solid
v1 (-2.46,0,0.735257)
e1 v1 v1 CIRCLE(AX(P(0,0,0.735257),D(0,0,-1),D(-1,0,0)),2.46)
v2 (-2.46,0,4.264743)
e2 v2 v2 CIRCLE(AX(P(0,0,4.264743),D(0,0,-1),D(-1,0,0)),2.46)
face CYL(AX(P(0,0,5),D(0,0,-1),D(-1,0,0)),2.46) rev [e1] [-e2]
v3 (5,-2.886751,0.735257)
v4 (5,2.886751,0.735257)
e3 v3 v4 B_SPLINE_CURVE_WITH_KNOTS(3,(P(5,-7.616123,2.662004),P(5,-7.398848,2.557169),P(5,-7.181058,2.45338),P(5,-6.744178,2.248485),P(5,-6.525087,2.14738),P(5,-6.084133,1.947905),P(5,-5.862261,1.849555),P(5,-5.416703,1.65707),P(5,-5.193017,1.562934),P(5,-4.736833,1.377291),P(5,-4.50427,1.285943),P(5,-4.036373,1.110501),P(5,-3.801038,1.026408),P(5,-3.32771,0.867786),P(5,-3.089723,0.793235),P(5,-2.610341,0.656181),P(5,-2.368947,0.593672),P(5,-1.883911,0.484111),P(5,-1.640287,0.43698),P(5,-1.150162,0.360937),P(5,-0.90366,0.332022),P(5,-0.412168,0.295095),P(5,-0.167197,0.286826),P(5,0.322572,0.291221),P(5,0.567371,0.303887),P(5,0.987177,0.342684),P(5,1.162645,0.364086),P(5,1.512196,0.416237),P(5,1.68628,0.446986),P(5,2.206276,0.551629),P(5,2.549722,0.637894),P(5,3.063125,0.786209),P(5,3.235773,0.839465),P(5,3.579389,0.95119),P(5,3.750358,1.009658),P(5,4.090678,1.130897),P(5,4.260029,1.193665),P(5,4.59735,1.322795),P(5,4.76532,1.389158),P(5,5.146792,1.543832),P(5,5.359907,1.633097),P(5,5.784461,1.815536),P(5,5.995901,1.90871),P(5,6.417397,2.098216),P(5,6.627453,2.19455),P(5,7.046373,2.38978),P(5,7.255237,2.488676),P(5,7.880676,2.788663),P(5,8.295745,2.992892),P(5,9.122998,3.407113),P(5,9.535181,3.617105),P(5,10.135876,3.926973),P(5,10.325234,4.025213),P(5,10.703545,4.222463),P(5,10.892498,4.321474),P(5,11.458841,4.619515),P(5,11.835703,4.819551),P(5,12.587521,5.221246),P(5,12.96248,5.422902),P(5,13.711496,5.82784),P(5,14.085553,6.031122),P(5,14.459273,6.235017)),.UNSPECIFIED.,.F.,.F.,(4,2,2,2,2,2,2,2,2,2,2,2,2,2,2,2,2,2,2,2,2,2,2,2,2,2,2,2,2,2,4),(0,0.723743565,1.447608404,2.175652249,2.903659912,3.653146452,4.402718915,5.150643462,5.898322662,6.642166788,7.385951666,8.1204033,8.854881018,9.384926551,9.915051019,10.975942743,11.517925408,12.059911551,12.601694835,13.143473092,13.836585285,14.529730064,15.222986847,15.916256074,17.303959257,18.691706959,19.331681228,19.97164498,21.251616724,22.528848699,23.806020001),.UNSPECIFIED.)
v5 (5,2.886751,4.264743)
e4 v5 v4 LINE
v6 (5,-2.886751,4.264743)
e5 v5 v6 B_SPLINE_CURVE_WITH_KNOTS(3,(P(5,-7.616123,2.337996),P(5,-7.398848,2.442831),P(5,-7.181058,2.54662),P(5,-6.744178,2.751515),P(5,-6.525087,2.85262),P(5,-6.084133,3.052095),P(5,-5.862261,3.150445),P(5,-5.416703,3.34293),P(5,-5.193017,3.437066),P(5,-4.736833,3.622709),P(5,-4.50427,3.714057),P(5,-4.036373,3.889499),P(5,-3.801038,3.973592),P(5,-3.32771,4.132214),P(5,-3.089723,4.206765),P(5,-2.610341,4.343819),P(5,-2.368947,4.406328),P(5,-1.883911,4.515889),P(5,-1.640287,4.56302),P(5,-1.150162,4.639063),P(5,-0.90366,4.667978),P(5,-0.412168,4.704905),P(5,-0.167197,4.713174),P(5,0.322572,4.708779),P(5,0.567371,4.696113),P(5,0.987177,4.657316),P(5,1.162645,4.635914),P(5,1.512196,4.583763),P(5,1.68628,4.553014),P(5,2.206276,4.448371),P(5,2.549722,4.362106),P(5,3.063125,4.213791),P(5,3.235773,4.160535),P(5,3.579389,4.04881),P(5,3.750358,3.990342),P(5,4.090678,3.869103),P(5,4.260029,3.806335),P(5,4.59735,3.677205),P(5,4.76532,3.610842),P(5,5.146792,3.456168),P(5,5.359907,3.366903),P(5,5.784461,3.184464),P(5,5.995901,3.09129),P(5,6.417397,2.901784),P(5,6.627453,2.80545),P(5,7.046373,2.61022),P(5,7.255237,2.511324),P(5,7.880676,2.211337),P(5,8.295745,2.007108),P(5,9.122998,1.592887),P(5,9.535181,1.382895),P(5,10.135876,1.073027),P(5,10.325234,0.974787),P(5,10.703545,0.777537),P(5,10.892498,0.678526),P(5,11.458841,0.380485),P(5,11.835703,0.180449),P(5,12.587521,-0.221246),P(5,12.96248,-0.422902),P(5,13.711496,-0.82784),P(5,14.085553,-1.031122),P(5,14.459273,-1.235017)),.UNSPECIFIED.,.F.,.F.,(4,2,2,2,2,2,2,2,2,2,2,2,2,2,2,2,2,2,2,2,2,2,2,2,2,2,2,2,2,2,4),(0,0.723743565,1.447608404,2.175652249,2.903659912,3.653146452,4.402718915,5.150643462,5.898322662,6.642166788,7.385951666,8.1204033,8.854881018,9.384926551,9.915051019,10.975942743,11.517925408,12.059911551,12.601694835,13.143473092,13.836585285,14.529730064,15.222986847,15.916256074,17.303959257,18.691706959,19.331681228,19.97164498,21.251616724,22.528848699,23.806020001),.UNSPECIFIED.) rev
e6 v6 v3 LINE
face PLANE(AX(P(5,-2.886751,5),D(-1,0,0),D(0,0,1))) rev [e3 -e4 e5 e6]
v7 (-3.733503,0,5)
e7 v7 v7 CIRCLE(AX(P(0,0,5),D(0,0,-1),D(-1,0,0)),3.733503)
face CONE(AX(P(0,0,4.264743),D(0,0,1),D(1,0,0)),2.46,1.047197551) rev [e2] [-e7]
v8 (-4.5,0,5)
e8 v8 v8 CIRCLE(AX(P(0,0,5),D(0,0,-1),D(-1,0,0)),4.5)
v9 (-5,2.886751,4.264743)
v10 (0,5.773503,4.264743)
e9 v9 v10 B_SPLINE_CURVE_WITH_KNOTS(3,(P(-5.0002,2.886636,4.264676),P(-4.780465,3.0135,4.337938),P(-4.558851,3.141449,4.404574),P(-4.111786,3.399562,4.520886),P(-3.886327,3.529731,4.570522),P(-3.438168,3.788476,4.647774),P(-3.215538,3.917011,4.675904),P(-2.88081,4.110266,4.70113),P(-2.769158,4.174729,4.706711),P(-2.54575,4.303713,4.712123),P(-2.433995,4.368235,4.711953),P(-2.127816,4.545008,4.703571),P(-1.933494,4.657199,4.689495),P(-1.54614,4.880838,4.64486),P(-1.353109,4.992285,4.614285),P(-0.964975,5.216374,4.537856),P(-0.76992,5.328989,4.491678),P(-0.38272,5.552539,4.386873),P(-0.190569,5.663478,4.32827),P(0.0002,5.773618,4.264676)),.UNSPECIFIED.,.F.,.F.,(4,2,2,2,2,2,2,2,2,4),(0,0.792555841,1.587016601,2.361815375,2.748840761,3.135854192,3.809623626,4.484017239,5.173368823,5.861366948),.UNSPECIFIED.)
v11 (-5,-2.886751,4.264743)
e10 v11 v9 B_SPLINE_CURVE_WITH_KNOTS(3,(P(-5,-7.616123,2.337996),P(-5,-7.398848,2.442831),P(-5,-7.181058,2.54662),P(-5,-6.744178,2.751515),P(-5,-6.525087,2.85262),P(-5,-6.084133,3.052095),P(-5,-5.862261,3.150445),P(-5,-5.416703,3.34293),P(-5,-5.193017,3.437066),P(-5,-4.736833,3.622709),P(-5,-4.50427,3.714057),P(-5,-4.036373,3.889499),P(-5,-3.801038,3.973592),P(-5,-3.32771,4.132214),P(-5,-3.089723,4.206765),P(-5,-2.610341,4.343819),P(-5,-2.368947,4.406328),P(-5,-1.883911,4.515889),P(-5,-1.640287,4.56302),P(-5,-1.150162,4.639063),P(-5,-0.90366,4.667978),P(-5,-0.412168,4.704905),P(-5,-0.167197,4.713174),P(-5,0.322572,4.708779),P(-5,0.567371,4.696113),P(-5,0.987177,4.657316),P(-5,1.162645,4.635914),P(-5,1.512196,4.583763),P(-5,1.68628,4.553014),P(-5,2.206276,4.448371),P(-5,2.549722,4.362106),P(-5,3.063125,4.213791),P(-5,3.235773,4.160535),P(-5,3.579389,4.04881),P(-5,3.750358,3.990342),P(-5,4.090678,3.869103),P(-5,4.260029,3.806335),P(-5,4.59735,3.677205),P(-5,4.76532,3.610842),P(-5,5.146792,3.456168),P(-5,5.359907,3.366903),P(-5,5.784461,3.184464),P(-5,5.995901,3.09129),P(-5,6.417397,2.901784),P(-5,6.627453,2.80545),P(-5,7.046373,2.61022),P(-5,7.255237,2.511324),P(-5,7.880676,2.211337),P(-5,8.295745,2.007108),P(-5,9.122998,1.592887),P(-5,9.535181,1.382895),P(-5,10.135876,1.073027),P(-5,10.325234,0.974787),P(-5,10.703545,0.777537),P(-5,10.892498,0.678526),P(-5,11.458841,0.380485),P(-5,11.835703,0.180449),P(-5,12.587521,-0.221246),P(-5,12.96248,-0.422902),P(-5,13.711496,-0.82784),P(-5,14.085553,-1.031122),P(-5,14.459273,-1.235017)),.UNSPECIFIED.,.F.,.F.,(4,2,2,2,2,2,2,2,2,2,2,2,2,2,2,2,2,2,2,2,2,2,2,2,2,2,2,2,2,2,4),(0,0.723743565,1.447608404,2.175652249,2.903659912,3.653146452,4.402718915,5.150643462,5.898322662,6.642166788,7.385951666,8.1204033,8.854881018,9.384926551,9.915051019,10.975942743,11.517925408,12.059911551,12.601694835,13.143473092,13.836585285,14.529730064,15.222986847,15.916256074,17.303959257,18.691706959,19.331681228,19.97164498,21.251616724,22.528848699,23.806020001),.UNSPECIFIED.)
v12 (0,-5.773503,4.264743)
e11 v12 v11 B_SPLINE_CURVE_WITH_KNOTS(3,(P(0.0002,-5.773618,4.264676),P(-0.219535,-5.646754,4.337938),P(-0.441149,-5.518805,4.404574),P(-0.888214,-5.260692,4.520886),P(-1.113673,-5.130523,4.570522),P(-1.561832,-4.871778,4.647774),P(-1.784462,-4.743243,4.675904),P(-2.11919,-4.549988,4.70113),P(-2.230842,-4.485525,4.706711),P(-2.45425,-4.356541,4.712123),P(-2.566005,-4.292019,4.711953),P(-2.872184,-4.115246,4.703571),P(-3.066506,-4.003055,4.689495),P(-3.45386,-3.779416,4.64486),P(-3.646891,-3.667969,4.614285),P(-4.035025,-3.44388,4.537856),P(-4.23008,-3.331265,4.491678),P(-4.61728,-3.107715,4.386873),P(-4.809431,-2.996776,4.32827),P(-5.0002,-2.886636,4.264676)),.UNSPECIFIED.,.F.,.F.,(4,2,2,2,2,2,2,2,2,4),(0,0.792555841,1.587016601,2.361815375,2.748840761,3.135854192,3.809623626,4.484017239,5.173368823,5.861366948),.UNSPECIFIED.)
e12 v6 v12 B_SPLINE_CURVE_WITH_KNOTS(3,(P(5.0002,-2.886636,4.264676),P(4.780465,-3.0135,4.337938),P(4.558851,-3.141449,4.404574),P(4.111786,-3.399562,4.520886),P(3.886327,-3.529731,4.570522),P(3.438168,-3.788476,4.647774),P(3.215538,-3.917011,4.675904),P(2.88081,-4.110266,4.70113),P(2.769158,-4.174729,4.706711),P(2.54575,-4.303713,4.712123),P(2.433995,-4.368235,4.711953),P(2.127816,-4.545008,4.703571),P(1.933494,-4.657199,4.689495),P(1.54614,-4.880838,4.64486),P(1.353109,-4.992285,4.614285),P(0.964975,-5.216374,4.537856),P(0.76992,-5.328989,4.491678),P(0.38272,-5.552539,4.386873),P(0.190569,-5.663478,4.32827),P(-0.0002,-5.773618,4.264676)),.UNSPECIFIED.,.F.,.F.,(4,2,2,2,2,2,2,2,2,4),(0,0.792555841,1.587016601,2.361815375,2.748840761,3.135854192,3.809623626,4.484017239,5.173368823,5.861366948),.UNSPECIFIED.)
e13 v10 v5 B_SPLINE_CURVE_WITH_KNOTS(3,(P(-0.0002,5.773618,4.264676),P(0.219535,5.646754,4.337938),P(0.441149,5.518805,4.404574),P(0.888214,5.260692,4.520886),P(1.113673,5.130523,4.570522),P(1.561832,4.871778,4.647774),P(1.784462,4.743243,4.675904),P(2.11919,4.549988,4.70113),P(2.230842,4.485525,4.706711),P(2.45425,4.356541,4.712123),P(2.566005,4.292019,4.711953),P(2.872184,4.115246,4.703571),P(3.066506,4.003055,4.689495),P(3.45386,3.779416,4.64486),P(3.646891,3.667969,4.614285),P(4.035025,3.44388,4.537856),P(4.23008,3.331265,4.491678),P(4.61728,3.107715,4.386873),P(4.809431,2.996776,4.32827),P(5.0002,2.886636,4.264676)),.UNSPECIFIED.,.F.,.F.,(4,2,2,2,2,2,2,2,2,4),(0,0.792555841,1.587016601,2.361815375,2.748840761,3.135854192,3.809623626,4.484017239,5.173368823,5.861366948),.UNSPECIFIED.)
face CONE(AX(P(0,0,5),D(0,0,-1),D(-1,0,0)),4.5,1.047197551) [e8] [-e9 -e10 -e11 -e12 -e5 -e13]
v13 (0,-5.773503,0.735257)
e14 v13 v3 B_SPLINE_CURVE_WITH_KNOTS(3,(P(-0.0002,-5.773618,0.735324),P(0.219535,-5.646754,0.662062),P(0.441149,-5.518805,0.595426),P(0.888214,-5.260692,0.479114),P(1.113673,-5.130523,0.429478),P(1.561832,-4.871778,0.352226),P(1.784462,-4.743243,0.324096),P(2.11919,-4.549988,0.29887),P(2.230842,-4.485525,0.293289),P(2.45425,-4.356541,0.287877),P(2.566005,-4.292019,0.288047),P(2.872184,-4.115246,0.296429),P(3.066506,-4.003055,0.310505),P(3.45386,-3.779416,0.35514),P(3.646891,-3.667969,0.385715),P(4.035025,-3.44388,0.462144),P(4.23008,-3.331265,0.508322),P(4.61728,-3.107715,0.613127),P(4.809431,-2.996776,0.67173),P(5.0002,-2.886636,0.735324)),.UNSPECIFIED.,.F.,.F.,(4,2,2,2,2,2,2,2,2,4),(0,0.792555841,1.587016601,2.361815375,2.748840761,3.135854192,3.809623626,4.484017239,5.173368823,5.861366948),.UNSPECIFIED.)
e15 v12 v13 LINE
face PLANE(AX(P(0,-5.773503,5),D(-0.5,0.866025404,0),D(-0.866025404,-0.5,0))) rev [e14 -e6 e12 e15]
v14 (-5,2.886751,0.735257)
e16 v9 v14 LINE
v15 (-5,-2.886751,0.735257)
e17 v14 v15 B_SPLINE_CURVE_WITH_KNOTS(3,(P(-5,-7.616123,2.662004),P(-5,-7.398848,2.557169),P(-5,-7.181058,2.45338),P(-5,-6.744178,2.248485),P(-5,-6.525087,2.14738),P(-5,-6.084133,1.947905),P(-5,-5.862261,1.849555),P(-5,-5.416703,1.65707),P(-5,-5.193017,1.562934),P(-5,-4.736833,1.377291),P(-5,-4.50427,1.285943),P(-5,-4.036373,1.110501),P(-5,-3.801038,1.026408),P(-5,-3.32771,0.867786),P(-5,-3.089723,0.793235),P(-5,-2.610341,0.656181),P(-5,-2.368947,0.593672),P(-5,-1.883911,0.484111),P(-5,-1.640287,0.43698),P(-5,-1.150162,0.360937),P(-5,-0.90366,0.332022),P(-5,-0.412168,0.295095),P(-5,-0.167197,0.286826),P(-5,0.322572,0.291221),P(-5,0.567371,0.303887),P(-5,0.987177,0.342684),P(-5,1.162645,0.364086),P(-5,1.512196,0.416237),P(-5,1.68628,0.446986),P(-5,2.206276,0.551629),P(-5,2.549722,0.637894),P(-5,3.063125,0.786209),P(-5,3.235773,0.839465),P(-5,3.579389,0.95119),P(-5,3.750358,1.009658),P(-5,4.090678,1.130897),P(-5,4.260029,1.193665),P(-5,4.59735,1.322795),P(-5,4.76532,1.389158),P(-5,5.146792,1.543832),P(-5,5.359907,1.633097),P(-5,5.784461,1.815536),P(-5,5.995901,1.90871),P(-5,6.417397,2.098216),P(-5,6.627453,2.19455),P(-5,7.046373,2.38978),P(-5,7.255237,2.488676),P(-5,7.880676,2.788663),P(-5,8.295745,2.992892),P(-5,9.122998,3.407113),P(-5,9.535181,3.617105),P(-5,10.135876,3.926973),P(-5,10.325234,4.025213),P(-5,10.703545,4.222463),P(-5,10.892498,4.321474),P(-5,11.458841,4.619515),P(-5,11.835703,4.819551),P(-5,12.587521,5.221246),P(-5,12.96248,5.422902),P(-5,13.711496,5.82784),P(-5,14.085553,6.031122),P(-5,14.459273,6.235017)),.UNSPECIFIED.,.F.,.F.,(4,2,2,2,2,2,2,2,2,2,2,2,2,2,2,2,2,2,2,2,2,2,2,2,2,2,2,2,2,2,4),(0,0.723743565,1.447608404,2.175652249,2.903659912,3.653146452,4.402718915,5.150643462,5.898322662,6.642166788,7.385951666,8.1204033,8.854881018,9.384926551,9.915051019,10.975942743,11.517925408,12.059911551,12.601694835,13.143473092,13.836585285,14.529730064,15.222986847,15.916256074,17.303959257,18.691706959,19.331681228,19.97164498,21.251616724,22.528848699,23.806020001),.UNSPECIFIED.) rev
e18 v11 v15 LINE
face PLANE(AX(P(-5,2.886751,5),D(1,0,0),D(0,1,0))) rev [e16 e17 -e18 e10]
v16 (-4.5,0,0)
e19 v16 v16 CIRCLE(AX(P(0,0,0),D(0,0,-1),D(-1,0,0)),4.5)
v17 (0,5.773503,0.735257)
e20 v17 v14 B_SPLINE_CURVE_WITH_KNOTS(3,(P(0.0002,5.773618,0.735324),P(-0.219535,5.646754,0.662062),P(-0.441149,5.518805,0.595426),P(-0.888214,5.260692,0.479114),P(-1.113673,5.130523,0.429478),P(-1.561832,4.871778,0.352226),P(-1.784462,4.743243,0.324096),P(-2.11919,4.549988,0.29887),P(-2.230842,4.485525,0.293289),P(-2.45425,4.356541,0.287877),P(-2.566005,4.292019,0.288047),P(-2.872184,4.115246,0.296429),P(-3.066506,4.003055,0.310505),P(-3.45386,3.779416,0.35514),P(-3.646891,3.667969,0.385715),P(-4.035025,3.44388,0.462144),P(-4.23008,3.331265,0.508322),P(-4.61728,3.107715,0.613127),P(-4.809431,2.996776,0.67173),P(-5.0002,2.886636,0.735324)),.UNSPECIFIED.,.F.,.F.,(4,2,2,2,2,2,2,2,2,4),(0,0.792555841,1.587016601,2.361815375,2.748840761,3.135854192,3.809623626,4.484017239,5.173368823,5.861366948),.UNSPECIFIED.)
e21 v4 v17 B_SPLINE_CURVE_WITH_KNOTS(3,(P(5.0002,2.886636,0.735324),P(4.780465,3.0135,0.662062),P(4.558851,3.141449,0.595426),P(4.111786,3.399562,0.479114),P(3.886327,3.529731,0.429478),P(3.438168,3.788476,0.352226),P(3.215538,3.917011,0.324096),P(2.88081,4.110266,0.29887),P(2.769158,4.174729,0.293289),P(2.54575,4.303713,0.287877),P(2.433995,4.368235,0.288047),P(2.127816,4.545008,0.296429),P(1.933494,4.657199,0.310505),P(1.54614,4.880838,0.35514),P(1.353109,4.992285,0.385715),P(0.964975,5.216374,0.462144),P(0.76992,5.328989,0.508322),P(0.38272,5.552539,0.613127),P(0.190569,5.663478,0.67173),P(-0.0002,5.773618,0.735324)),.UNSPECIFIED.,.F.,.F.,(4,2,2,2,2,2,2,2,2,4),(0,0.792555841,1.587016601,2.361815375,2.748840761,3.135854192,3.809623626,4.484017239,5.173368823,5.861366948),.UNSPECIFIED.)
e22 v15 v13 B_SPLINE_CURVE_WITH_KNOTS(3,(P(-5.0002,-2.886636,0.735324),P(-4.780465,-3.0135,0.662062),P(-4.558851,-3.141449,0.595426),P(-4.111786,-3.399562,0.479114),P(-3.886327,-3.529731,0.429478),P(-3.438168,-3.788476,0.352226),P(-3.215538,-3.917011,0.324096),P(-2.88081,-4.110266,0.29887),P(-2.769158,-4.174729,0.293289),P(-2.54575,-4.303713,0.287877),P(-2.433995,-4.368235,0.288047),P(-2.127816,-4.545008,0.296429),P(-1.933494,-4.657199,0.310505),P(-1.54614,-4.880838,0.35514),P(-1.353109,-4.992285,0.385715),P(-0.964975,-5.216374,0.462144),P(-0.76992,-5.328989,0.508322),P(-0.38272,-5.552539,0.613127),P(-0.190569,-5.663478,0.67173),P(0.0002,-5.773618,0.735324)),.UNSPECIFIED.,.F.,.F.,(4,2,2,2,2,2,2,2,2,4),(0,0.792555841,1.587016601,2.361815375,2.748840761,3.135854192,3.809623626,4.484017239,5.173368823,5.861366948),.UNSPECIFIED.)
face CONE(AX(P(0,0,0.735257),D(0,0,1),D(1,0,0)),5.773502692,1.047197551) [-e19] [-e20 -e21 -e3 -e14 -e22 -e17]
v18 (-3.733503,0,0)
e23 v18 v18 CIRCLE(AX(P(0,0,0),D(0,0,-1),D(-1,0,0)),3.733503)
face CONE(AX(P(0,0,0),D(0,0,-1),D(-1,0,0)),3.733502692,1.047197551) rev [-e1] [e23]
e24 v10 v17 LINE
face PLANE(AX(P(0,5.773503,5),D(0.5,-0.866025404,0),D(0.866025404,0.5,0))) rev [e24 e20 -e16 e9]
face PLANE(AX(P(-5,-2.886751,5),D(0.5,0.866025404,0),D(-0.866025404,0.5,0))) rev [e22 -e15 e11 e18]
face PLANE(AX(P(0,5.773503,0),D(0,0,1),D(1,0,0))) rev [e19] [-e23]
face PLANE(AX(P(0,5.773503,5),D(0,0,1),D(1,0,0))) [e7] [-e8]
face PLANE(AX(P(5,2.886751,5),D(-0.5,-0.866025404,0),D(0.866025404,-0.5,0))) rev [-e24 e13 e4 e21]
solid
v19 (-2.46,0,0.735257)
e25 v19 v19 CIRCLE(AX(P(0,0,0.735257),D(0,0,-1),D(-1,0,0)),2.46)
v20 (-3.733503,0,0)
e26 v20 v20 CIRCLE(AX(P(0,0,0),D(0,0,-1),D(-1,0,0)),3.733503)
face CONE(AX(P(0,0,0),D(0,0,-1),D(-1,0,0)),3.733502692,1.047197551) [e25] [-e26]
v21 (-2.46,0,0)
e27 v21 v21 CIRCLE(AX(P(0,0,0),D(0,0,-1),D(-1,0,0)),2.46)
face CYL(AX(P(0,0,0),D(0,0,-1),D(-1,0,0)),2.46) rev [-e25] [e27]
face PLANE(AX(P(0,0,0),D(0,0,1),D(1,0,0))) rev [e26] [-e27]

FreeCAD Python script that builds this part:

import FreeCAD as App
import Part
import Sketcher

V = App.Vector
Q = App.Units.Quantity


def add_polygon(sketch, points):
    """Adds a closed chain of lines whose ends are joined by coincident constraints."""
    first, n = sketch.GeometryCount, len(points)
    for a, b in zip(points, points[1:] + points[:1]):
        sketch.addGeometry(Part.LineSegment(App.Vector(*a, 0), App.Vector(*b, 0)), False)
    for i in range(n):
        sketch.addConstraint(Sketcher.Constraint("Coincident", first + i, 2, first + (i + 1) % n, 1))

doc = App.newDocument("Part")
params = doc.addObject("Spreadsheet::Sheet", "Params")
for row, (alias, value) in enumerate([
    ("sketch1_diameter", "4.92 mm"),
    ("pad1_length", "5 mm"),
    ("groove_angle", "360 deg"),
    ("revolution_angle", "360 deg"),
], start=1):
    params.set(f"A{row}", alias)
    params.set(f"B{row}", "=" + value)
    params.setAlias(f"B{row}", alias)

body = doc.addObject("PartDesign::Body", "Body")

# Sketch on XY plane
sketch1 = doc.addObject("Sketcher::SketchObject", "Sketch")
body.addObject(sketch1)
sketch1.AttachmentSupport = (doc.XY_Plane, [""])
sketch1.MapMode = "FlatFace"
add_polygon(sketch1, [(0, 5.8), (-5, 2.9), (-5, -2.9), (0, -5.8), (5, -2.9), (5, 2.9)])  # lines 0-5
sketch1.addGeometry(Part.Circle(V(0, 0, 0), V(0, 0, 1), 2.5), False)  # 6
sketch1.addConstraint(Sketcher.Constraint("Vertical", 1))
sketch1.addConstraint(Sketcher.Constraint("Vertical", 4))
sketch1.addConstraint(Sketcher.Constraint("Coincident", 6, 3, -1, 1))
sketch1.addConstraint(Sketcher.Constraint("Symmetric", 0, 2, 3, 2, -1, 1))
sketch1.addConstraint(Sketcher.Constraint("Symmetric", 2, 2, 5, 2, -1, 1))
sketch1.addConstraint(Sketcher.Constraint("PointOnObject", 2, 2, -2))
sketch1.addConstraint(Sketcher.Constraint("Parallel", 2, 5))
sketch1.addConstraint(Sketcher.Constraint("Horizontal", 1, 2, 3, 2))
sketch1.addConstraint(Sketcher.Constraint("Diameter", 6, 4.92))
sketch1.addConstraint(Sketcher.Constraint("Angle", 0, Q("-150 deg")))
sketch1.addConstraint(Sketcher.Constraint("DistanceX", 0, 2, -1, 1, 5.0))
sketch1.addConstraint(Sketcher.Constraint("DistanceY", 1, 2, 1, 1, 5.773503))
sketch1.setExpression("Constraints[14]", "Params.sketch1_diameter")
pad1 = doc.addObject("PartDesign::Pad", "Pad")
body.addObject(pad1)
pad1.Profile = sketch1
pad1.setExpression("Length", "Params.pad1_length")

# Sketch on YZ plane
sketch2 = doc.addObject("Sketcher::SketchObject", "Sketch001")
body.addObject(sketch2)
sketch2.AttachmentSupport = (doc.YZ_Plane, [""])
sketch2.MapMode = "FlatFace"
add_polygon(sketch2, [(5.8, 5), (4.5, 5), (5.8, 4.3)])  # lines 0-2
add_polygon(sketch2, [(2.5, 5), (2.5, 4.3), (3.7, 5)])  # lines 3-5
add_polygon(sketch2, [(2.5, 0), (3.7, 0), (2.5, 0.7)])  # lines 6-8
add_polygon(sketch2, [(5.8, 0.7), (4.5, 0), (5.8, 0)])  # lines 9-11
sketch2.addConstraint(Sketcher.Constraint("Horizontal", 0))
sketch2.addConstraint(Sketcher.Constraint("Vertical", 2))
sketch2.addConstraint(Sketcher.Constraint("Vertical", 3))
sketch2.addConstraint(Sketcher.Constraint("Horizontal", 5))
sketch2.addConstraint(Sketcher.Constraint("Horizontal", 6))
sketch2.addConstraint(Sketcher.Constraint("Vertical", 8))
sketch2.addConstraint(Sketcher.Constraint("Horizontal", 10))
sketch2.addConstraint(Sketcher.Constraint("Vertical", 11))
sketch2.addConstraint(Sketcher.Constraint("PointOnObject", 6, 2, -1))
sketch2.addConstraint(Sketcher.Constraint("PointOnObject", 9, 2, -1))
sketch2.addConstraint(Sketcher.Constraint("Parallel", 1, 7))
sketch2.addConstraint(Sketcher.Constraint("Parallel", 4, 9))
sketch2.addConstraint(Sketcher.Constraint("Horizontal", 1, 2, 3, 2))
sketch2.addConstraint(Sketcher.Constraint("Horizontal", 2, 2, 4, 2))
sketch2.addConstraint(Sketcher.Constraint("Horizontal", 7, 2, 11, 2))
sketch2.addConstraint(Sketcher.Constraint("Vertical", 4, 2, 6, 2))
sketch2.addConstraint(Sketcher.Constraint("Vertical", 5, 2, 7, 2))
sketch2.addConstraint(Sketcher.Constraint("Vertical", 0, 2, 9, 2))
sketch2.addConstraint(Sketcher.Constraint("Vertical", 2, 2, 10, 2))
sketch2.addConstraint(Sketcher.Constraint("Angle", 1, Q("-30 deg")))
sketch2.addConstraint(Sketcher.Constraint("DistanceY", -1, 1, 0, 2, 5.0))
sketch2.addConstraint(Sketcher.Constraint("DistanceX", -1, 1, 0, 2, 4.5))
sketch2.addConstraint(Sketcher.Constraint("DistanceX", -1, 1, 3, 2, 2.46))
sketch2.addConstraint(Sketcher.Constraint("DistanceX", 0, 2, 0, 1, 1.273503))
groove = doc.addObject("PartDesign::Groove", "Groove")
body.addObject(groove)
groove.Profile = sketch2
groove.ReferenceAxis = (sketch2, ["V_Axis"])
groove.setExpression("Angle", "Params.groove_angle")
body2 = doc.addObject("PartDesign::Body", "Body001")

# Sketch on YZ plane
sketch3 = doc.addObject("Sketcher::SketchObject", "Sketch002")
body2.addObject(sketch3)
sketch3.AttachmentSupport = (doc.getObject("YZ_Plane001"), [""])
sketch3.MapMode = "FlatFace"
add_polygon(sketch3, [(3.7, 0), (2.5, 0.7), (2.5, 0)])  # lines 0-2
sketch3.addConstraint(Sketcher.Constraint("Vertical", 1))
sketch3.addConstraint(Sketcher.Constraint("Horizontal", 2))
sketch3.addConstraint(Sketcher.Constraint("PointOnObject", 1, 2, -1))
sketch3.addConstraint(Sketcher.Constraint("Angle", 0, Q("150 deg")))
sketch3.addConstraint(Sketcher.Constraint("DistanceX", -1, 1, 0, 2, 2.46))
sketch3.addConstraint(Sketcher.Constraint("DistanceX", 2, 1, 2, 2, 1.273503))
revolution = doc.addObject("PartDesign::Revolution", "Revolution")
body2.addObject(revolution)
revolution.Profile = sketch3
revolution.ReferenceAxis = (sketch3, ["V_Axis"])
revolution.setExpression("Angle", "Params.revolution_angle")

doc.recompute()
